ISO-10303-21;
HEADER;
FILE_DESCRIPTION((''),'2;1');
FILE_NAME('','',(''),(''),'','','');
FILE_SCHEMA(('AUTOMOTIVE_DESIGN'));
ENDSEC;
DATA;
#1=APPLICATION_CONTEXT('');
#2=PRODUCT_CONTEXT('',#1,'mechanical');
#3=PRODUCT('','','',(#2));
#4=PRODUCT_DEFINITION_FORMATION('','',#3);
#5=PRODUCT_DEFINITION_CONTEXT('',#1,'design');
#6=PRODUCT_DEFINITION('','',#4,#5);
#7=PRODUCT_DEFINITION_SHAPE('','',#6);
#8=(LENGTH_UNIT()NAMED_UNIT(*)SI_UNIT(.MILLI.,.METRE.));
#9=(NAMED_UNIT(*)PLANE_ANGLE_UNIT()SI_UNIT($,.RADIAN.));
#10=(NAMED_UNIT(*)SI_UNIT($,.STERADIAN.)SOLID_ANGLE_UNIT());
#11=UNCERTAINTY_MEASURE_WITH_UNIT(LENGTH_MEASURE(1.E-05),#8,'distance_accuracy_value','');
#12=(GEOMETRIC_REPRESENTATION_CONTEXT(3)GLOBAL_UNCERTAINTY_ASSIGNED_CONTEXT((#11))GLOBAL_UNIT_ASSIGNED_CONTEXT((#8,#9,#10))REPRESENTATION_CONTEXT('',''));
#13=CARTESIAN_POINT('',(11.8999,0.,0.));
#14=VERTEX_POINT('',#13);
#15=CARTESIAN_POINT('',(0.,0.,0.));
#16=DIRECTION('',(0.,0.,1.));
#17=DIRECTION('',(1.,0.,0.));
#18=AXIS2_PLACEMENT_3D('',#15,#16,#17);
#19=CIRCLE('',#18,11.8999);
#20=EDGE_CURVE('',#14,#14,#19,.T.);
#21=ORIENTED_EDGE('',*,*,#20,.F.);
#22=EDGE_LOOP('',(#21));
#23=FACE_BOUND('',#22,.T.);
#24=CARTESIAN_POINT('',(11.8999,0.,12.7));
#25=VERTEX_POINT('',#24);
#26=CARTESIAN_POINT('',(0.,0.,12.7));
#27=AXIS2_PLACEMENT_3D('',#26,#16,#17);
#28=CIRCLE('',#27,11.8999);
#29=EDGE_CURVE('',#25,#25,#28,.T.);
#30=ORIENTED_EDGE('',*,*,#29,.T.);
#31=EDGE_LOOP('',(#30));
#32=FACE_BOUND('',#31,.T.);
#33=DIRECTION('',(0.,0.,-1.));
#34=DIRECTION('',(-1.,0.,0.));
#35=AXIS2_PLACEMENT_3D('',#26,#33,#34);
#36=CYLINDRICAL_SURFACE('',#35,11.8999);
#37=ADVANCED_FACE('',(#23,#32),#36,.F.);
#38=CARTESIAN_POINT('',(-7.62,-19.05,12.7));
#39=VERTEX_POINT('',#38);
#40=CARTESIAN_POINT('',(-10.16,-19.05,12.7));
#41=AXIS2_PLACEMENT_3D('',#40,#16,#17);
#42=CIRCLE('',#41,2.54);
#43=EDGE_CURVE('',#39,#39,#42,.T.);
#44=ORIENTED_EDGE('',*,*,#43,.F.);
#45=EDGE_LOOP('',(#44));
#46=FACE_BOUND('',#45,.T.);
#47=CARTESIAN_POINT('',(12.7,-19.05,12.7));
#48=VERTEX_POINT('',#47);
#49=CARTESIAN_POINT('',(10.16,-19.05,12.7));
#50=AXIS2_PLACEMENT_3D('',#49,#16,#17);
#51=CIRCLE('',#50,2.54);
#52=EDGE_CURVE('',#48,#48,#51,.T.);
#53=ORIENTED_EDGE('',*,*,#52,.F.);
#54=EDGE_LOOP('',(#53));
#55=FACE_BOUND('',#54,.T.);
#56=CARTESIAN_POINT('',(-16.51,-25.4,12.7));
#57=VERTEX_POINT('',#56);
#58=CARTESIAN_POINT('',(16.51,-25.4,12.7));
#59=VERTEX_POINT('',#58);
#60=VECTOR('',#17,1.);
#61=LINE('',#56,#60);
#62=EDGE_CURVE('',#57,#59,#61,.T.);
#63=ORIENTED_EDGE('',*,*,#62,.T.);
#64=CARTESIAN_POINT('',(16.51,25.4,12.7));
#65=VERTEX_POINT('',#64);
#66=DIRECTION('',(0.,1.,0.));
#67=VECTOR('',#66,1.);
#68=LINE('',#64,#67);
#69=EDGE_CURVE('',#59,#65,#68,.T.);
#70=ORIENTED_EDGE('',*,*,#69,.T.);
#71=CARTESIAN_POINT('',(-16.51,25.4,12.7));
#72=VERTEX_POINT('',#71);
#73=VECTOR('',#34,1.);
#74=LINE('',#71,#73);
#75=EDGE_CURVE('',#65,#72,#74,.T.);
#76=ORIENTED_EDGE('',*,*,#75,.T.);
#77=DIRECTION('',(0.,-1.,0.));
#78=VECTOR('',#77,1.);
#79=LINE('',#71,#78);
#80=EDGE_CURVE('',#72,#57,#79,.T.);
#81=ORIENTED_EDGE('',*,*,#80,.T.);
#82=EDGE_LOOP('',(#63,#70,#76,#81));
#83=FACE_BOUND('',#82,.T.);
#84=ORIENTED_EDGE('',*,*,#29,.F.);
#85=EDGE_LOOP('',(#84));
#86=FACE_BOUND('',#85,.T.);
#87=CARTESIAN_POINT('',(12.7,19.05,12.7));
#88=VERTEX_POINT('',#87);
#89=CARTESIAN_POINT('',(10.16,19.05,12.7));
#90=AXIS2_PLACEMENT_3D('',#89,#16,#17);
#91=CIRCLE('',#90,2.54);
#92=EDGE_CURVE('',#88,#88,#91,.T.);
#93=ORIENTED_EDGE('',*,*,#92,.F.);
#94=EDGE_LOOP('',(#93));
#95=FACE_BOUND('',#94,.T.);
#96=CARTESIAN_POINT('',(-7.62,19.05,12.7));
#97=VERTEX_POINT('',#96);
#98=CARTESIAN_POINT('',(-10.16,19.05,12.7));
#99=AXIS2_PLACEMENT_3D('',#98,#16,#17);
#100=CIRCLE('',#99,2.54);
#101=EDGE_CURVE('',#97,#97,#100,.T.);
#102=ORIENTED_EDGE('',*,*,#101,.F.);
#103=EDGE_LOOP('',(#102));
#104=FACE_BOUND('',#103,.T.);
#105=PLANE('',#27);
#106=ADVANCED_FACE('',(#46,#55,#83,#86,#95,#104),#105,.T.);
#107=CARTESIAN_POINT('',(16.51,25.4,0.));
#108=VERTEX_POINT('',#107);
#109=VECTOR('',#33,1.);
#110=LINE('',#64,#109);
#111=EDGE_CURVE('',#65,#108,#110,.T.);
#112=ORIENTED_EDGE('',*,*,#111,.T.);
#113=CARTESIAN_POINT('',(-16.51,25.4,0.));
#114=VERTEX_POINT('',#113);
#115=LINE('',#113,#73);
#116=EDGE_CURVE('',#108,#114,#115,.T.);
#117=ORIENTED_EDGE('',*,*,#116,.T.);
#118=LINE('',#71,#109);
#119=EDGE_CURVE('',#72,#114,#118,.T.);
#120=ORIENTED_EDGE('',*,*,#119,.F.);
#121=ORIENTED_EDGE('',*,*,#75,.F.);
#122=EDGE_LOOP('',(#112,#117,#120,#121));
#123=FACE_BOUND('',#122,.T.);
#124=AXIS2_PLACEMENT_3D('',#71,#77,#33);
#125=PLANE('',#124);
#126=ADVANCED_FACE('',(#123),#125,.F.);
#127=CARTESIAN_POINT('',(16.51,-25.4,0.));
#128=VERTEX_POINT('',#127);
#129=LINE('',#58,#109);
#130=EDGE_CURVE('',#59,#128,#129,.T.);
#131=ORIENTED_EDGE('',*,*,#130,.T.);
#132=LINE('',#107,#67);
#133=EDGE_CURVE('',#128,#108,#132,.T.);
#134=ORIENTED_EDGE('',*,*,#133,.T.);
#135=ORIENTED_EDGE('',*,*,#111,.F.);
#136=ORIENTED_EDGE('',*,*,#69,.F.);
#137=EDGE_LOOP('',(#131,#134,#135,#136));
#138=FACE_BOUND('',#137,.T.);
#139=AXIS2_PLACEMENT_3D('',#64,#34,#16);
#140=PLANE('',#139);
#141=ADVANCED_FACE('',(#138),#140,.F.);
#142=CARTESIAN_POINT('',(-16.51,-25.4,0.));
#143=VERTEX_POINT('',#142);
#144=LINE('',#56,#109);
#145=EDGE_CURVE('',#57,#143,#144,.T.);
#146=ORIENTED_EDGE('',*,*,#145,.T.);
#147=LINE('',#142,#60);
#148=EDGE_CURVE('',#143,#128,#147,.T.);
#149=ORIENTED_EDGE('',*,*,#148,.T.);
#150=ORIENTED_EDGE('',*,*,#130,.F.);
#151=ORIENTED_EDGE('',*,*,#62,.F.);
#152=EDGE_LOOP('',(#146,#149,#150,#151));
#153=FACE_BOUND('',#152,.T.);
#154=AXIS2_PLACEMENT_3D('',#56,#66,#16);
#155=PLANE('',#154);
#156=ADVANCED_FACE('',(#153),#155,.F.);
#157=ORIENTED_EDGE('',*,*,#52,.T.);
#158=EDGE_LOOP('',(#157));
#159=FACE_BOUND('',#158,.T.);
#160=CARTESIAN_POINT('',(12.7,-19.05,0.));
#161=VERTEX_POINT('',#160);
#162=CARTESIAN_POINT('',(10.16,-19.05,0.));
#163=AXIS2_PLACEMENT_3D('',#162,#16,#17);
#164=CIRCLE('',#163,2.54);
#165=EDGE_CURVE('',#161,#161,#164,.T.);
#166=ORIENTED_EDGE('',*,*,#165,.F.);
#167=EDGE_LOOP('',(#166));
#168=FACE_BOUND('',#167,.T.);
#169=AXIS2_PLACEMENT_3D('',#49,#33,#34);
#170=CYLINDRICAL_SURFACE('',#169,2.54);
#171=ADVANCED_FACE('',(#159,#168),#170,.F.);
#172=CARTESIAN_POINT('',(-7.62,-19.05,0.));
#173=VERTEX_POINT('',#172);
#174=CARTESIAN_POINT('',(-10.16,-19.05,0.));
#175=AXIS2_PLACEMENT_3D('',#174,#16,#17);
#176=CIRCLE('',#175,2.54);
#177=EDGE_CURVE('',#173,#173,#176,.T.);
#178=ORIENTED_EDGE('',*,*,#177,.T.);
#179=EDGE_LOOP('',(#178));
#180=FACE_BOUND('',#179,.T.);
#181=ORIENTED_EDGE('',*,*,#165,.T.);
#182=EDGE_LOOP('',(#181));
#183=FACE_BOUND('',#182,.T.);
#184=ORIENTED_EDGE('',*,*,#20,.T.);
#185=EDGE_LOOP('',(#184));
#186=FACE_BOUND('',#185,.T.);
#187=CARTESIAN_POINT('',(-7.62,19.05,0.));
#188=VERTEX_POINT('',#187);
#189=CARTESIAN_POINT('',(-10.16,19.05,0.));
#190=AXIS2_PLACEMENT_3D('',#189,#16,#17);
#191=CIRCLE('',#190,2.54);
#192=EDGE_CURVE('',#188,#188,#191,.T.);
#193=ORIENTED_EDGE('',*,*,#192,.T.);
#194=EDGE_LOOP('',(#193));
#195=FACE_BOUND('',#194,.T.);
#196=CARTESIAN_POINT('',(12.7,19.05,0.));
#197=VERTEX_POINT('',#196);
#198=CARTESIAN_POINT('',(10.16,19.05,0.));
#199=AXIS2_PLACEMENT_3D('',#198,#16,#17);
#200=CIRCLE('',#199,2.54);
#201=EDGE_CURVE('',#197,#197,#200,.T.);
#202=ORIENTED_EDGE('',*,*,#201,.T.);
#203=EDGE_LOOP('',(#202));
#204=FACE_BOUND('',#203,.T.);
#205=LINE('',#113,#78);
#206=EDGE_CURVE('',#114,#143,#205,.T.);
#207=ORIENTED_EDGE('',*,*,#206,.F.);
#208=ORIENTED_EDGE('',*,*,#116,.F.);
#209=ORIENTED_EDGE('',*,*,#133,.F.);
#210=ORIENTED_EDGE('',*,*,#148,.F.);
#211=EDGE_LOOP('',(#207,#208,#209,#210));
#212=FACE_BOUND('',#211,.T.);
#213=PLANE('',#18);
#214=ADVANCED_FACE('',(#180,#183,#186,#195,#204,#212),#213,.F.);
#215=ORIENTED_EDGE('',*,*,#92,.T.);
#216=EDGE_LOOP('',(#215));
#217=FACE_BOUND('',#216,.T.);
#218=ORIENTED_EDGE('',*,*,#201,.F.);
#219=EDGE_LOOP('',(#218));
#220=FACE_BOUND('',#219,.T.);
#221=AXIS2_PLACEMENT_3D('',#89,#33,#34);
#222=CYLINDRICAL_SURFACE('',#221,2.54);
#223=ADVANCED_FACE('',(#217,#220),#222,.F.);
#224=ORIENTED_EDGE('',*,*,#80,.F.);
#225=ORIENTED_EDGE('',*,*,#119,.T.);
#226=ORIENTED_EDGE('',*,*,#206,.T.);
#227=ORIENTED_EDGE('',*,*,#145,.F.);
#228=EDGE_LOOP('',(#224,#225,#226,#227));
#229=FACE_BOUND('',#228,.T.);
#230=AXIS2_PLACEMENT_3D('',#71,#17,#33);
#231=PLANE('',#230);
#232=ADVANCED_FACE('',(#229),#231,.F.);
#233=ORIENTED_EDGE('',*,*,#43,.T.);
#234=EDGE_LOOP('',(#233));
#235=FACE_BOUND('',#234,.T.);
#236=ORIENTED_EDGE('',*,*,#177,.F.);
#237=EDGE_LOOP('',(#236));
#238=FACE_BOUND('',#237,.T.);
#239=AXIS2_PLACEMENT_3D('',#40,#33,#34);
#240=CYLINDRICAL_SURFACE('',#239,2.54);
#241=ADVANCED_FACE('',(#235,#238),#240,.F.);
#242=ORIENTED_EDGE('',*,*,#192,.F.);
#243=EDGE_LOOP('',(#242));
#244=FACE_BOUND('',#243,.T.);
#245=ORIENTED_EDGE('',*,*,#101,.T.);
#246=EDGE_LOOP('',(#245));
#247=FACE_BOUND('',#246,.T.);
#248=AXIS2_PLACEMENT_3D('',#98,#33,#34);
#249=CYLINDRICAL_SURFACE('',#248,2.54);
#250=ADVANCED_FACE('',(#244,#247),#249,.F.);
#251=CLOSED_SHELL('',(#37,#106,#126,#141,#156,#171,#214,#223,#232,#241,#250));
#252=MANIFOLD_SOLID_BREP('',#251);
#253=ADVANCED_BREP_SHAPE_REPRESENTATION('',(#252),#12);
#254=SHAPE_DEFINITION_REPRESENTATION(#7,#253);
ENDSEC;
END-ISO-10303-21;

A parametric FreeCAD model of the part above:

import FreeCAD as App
import Part
import Sketcher

V = App.Vector
Q = App.Units.Quantity


def add_polygon(sketch, points):
    """Adds a closed chain of lines whose ends are joined by coincident constraints."""
    first, n = sketch.GeometryCount, len(points)
    for a, b in zip(points, points[1:] + points[:1]):
        sketch.addGeometry(Part.LineSegment(App.Vector(*a, 0), App.Vector(*b, 0)), False)
    for i in range(n):
        sketch.addConstraint(Sketcher.Constraint("Coincident", first + i, 2, first + (i + 1) % n, 1))

doc = App.newDocument("Part")
body = doc.addObject("PartDesign::Body", "Body")

# Sketch on XY plane
sketch1 = body.newObject("Sketcher::SketchObject", "Sketch")
sketch1.AttachmentSupport = (doc.getObject("XY_Plane"), [""])
sketch1.MapMode = "FlatFace"
add_polygon(sketch1, [(-16.5, 25.4), (-16.5, -25.4), (16.5, -25.4), (16.5, 25.4)])  # lines 0-3
sketch1.addGeometry(Part.Circle(V(-10.2, -19.1, 0), V(0, 0, 1), 2.5), False)  # 4
sketch1.addGeometry(Part.Circle(V(10.2, -19.1, 0), V(0, 0, 1), 2.5), False)  # 5
sketch1.addGeometry(Part.Circle(V(0, 0, 0), V(0, 0, 1), 11.9), False)  # 6
sketch1.addGeometry(Part.Circle(V(-10.2, 19.1, 0), V(0, 0, 1), 2.5), False)  # 7
sketch1.addGeometry(Part.Circle(V(10.2, 19.1, 0), V(0, 0, 1), 2.5), False)  # 8
sketch1.addConstraint(Sketcher.Constraint("Vertical", 0))
sketch1.addConstraint(Sketcher.Constraint("Horizontal", 1))
sketch1.addConstraint(Sketcher.Constraint("Vertical", 2))
sketch1.addConstraint(Sketcher.Constraint("Horizontal", 3))
sketch1.addConstraint(Sketcher.Constraint("Coincident", 6, 3, -1, 1))
sketch1.addConstraint(Sketcher.Constraint("Equal", 4, 5))
sketch1.addConstraint(Sketcher.Constraint("Equal", 5, 7))
sketch1.addConstraint(Sketcher.Constraint("Equal", 7, 8))
sketch1.addConstraint(Sketcher.Constraint("Symmetric", 5, 3, 7, 3, -1, 1))
sketch1.addConstraint(Sketcher.Constraint("Symmetric", 4, 3, 8, 3, -1, 1))
sketch1.addConstraint(Sketcher.Constraint("Symmetric", 0, 2, 2, 2, -1, 1))
sketch1.addConstraint(Sketcher.Constraint("Symmetric", 4, 3, 5, 3, -2))
sketch1.addConstraint(Sketcher.Constraint("Diameter", 4, Q("0.2 in")))
sketch1.addConstraint(Sketcher.Constraint("DistanceY", 0, 2, 0, 1, Q("2 in")))
sketch1.addConstraint(Sketcher.Constraint("Diameter", 6, Q("0.937 in")))
sketch1.addConstraint(Sketcher.Constraint("DistanceX", 1, 1, 1, 2, Q("1.3 in")))
sketch1.addConstraint(Sketcher.Constraint("DistanceX", 4, 3, -1, 1, Q("0.4 in")))
sketch1.addConstraint(Sketcher.Constraint("DistanceY", 4, 3, 7, 3, Q("1.5 in")))
pad1 = body.newObject("PartDesign::Pad", "Pad")
pad1.Profile = sketch1
pad1.Length = Q("0.5 in")

doc.recompute()
